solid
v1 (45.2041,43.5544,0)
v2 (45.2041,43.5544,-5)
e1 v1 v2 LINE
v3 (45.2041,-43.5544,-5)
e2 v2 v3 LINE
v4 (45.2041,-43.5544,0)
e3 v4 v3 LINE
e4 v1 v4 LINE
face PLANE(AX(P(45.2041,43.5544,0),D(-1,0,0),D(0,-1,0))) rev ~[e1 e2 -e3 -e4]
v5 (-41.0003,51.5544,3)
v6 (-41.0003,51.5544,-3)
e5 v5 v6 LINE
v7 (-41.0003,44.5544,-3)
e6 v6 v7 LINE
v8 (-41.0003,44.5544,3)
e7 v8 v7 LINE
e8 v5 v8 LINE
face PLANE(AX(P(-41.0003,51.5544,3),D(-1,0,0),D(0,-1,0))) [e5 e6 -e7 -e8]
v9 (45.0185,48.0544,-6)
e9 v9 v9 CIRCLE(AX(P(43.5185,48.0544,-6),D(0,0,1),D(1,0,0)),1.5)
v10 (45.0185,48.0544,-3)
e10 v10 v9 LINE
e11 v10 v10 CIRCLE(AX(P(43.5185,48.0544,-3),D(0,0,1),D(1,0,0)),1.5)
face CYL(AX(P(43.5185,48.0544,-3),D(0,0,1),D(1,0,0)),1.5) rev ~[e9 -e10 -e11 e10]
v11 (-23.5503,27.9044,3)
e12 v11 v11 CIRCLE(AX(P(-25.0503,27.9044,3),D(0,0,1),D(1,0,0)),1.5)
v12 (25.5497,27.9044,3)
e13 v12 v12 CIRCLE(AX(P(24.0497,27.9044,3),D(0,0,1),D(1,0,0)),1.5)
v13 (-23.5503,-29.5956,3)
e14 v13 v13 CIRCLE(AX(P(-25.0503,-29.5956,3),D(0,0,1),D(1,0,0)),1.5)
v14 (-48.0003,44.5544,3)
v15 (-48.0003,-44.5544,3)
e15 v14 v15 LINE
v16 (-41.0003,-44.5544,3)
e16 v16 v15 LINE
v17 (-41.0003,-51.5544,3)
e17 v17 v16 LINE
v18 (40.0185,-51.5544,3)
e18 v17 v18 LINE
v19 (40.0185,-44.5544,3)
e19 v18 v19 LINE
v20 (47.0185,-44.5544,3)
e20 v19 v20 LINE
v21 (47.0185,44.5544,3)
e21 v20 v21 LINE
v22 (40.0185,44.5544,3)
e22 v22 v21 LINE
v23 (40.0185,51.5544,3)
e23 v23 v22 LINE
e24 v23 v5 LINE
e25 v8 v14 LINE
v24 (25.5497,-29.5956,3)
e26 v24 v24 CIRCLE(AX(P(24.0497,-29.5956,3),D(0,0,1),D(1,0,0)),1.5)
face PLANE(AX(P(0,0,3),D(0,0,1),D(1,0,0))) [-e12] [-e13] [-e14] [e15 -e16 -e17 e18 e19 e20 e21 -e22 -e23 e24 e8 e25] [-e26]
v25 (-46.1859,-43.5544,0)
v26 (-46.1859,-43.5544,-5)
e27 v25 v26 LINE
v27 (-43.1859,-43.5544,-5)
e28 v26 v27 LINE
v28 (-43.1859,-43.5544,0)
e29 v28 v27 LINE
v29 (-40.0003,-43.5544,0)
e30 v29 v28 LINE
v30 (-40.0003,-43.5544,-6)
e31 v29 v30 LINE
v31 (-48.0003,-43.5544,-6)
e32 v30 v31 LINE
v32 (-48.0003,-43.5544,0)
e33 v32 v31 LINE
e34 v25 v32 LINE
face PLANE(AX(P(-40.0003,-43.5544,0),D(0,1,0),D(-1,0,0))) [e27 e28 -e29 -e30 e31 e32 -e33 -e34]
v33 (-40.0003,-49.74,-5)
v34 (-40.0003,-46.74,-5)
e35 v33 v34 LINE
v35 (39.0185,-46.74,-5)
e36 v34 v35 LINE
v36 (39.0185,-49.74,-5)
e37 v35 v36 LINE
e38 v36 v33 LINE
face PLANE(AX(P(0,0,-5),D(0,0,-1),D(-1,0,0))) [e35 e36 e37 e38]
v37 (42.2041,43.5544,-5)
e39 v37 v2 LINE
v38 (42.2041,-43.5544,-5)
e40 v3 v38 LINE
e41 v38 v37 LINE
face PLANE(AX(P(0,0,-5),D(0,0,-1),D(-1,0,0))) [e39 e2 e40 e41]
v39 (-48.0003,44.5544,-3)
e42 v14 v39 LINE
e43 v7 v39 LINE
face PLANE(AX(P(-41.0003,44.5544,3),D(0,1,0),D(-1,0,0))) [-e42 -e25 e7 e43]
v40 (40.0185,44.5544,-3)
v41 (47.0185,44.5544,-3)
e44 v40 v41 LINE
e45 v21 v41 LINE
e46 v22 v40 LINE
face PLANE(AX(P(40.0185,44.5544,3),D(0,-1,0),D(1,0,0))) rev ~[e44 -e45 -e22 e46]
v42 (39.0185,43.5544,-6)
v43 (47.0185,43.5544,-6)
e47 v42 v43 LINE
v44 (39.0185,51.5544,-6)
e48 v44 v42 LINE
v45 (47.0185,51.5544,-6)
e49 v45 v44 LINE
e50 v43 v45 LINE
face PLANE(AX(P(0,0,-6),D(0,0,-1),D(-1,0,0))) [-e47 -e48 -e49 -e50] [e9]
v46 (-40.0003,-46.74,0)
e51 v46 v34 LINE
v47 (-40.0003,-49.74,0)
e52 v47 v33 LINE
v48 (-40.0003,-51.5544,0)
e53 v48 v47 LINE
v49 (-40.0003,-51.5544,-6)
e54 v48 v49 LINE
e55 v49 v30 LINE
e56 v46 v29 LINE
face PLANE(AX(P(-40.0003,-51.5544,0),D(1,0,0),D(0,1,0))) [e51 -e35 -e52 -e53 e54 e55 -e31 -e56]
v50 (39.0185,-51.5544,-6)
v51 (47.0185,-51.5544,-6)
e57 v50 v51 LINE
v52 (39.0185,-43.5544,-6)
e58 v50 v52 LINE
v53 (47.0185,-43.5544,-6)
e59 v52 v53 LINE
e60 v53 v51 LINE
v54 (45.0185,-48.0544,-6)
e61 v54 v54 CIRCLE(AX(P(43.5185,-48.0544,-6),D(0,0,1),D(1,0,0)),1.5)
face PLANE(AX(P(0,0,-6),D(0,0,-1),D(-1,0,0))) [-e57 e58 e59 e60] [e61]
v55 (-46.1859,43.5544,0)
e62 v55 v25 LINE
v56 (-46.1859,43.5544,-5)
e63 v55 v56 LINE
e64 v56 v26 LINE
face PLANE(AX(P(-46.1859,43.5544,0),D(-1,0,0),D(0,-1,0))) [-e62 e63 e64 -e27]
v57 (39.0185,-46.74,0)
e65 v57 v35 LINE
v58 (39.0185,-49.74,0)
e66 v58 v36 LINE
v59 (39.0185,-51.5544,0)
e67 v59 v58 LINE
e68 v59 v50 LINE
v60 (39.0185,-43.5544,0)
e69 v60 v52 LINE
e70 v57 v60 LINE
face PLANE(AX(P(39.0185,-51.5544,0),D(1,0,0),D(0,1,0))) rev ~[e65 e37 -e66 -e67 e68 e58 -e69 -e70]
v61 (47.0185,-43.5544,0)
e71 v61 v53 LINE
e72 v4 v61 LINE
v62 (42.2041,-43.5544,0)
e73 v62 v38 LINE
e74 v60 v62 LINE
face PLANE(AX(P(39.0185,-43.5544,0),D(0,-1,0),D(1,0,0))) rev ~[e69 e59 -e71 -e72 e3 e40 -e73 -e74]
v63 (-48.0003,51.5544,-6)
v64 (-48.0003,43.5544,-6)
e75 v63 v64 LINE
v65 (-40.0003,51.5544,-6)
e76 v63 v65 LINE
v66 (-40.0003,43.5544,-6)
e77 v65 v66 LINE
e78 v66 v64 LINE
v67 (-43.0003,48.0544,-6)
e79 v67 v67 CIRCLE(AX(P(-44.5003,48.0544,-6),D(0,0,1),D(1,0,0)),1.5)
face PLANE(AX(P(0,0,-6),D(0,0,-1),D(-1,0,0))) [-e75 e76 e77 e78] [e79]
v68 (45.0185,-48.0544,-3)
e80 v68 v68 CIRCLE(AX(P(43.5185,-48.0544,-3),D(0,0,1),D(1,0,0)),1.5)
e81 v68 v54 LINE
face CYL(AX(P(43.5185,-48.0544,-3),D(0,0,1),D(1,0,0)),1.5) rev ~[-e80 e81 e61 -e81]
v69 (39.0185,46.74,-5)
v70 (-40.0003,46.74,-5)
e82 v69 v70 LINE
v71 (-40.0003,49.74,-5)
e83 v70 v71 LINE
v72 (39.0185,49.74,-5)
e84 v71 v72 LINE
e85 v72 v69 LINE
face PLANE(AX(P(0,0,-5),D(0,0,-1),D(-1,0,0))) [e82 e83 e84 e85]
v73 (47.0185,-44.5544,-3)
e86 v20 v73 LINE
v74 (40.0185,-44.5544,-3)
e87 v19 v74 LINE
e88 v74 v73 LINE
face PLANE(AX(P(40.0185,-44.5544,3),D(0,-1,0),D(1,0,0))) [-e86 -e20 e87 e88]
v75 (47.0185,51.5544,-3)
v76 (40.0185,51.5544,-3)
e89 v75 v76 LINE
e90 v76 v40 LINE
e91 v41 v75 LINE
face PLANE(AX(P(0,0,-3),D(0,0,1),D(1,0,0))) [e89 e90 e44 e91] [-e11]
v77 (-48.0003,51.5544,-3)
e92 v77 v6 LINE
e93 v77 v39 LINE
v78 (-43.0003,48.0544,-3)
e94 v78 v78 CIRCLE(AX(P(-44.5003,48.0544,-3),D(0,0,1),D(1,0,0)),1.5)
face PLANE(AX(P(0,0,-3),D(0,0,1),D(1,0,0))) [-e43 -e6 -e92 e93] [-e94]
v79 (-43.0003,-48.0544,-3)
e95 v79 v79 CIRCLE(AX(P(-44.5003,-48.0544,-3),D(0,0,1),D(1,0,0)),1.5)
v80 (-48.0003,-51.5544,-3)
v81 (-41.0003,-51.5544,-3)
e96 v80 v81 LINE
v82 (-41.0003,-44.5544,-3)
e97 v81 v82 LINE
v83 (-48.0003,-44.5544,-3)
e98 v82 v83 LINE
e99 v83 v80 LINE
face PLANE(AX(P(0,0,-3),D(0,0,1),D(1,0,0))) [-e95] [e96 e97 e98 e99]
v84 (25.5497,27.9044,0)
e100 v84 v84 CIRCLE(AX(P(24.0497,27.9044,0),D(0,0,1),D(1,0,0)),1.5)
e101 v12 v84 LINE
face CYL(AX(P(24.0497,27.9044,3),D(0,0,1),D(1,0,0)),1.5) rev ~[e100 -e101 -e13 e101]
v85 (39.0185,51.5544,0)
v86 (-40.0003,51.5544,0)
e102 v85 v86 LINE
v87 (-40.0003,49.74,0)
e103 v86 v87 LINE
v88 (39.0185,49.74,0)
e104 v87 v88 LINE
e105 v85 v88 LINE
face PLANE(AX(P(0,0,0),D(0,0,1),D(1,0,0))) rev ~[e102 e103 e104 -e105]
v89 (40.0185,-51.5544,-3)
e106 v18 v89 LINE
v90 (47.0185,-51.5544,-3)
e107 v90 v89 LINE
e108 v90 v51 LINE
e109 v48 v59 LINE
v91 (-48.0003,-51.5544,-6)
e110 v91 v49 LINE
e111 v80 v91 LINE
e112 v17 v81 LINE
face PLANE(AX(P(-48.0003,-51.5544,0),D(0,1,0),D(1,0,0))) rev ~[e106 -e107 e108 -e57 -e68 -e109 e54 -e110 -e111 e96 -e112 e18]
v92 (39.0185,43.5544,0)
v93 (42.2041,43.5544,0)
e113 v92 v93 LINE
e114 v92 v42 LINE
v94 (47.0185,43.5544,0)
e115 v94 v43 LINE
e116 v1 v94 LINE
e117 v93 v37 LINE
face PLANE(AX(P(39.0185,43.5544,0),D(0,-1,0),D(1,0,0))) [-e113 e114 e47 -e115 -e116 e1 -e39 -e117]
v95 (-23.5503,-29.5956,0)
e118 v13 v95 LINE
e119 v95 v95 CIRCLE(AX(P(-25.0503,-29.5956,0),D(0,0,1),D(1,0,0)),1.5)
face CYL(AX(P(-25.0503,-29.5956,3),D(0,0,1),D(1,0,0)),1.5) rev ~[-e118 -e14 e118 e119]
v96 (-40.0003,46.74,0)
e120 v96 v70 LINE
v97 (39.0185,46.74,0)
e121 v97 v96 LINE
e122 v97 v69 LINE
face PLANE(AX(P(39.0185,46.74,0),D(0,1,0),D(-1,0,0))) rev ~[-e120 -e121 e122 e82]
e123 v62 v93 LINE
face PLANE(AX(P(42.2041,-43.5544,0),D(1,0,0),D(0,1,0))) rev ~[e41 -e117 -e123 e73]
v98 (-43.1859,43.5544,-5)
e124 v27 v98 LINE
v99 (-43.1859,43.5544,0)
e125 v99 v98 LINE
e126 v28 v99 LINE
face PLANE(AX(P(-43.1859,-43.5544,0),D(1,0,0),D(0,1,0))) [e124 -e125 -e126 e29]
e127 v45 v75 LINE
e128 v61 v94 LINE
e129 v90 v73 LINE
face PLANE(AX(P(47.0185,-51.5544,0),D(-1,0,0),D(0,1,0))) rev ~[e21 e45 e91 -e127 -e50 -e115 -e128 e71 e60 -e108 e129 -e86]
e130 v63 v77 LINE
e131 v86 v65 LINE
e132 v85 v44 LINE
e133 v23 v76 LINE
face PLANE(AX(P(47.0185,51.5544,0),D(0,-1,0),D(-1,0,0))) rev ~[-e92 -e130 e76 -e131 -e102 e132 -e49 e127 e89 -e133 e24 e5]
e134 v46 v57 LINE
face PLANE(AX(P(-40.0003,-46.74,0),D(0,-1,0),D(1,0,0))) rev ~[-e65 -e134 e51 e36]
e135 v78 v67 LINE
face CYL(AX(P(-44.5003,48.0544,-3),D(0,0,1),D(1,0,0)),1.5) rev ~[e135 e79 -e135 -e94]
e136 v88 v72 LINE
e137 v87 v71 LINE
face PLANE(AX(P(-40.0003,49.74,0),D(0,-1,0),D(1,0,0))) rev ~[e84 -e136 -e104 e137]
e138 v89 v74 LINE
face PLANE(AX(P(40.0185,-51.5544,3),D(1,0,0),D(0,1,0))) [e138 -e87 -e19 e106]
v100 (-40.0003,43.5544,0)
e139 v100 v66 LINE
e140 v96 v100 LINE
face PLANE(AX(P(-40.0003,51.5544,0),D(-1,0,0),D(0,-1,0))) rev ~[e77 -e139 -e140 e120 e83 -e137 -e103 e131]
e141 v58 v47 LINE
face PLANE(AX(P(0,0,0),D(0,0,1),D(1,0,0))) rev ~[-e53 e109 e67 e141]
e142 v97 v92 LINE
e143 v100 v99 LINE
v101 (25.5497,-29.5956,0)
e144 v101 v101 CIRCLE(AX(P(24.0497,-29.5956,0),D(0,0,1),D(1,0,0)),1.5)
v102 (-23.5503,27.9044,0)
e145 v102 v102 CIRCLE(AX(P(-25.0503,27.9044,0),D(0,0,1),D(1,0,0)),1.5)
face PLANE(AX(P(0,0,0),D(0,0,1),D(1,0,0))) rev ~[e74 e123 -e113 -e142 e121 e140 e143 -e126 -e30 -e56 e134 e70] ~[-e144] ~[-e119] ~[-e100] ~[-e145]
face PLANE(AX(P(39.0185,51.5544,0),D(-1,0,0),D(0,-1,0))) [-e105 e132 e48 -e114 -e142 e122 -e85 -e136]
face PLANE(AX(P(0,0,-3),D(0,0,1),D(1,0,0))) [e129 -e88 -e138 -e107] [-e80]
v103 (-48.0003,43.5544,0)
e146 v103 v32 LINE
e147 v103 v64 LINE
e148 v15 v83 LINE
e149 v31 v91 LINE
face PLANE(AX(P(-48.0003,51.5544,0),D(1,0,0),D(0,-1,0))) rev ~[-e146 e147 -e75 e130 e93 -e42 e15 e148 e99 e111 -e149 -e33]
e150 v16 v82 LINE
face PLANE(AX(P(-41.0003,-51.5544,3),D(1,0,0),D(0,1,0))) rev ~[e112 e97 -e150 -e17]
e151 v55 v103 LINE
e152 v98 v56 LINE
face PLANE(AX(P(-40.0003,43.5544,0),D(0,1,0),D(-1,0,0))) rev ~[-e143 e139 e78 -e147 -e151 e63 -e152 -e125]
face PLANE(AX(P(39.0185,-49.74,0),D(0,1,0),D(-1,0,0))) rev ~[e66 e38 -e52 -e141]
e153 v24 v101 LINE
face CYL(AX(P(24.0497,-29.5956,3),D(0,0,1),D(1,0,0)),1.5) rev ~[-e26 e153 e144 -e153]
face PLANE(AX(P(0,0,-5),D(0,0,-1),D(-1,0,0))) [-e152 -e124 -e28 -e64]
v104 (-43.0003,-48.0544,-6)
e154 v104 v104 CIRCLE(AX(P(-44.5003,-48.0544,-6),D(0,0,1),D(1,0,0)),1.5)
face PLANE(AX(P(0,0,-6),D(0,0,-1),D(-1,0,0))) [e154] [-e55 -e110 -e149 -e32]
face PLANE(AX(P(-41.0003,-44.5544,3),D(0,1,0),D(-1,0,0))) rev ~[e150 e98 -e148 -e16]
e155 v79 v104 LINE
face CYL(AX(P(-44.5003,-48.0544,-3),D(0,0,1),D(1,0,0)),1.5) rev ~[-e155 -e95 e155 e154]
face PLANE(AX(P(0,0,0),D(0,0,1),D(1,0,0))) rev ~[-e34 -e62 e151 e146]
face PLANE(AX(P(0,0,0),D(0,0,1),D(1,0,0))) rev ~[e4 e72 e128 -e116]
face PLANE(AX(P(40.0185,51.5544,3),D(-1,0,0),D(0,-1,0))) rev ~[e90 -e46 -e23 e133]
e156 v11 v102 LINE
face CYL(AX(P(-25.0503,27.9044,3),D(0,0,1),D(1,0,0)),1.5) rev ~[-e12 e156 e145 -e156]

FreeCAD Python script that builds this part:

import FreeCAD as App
import Part
import Sketcher
from FreeCAD import Vector


def add_polygon(sketch, points):
    """Adds a closed chain of lines whose ends are joined by coincident constraints."""
    first, n = sketch.GeometryCount, len(points)
    for a, b in zip(points, points[1:] + points[:1]):
        sketch.addGeometry(Part.LineSegment(App.Vector(*a, 0), App.Vector(*b, 0)), False)
    for i in range(n):
        sketch.addConstraint(Sketcher.Constraint("Coincident", first + i, 2, first + (i + 1) % n, 1))

doc = App.newDocument("Part")
body = doc.addObject("PartDesign::Body", "Body")

sketch1 = body.newObject("Sketcher::SketchObject", "Sketch")
sketch1.AttachmentSupport = (doc.getObject("XY_Plane"), [""])
sketch1.MapMode = "FlatFace"
add_polygon(sketch1, [(47, -52), (47, 52), (-48, 52), (-48, -52)])
sketch1.addConstraint([
    Sketcher.Constraint("Vertical", 0),
    Sketcher.Constraint("Horizontal", 1),
    Sketcher.Constraint("Vertical", 2),
    Sketcher.Constraint("Horizontal", 3),
    Sketcher.Constraint("DistanceX", 1, 2, 1, 1, 95.0188),
    Sketcher.Constraint("DistanceY", 0, 1, 0, 2, 103.1088),
    Sketcher.Constraint("DistanceX", -1, 1, 0, 2, 47.0185),
    Sketcher.Constraint("DistanceY", -1, 1, 0, 2, 51.5544),
])
pad1 = body.newObject("PartDesign::Pad", "Pad")
pad1.Profile = sketch1
pad1.Length = 3

sketch2 = body.newObject("Sketcher::SketchObject", "Sketch001")
sketch2.AttachmentSupport = (doc.getObject("XY_Plane"), [""])
sketch2.MapMode = "FlatFace"
add_polygon(sketch2, [(-46.2, 43.6), (-43.2, 43.6), (-43.2, -43.6), (-46.2, -43.6)])
add_polygon(sketch2, [(42.2, -43.6), (42.2, 43.6), (45.2, 43.6), (45.2, -43.6)])
add_polygon(sketch2, [(-40, 46.7), (-40, 49.7), (39, 49.7), (39, 46.7)])
add_polygon(sketch2, [(-40, -49.7), (-40, -46.7), (39, -46.7), (39, -49.7)])
sketch2.addConstraint([
    Sketcher.Constraint("Horizontal", 0),
    Sketcher.Constraint("Vertical", 1),
    Sketcher.Constraint("Horizontal", 2),
    Sketcher.Constraint("Vertical", 3),
    Sketcher.Constraint("Vertical", 4),
    Sketcher.Constraint("Horizontal", 5),
    Sketcher.Constraint("Vertical", 6),
    Sketcher.Constraint("Horizontal", 7),
    Sketcher.Constraint("Vertical", 8),
    Sketcher.Constraint("Horizontal", 9),
    Sketcher.Constraint("Vertical", 10),
    Sketcher.Constraint("Horizontal", 11),
    Sketcher.Constraint("Vertical", 12),
    Sketcher.Constraint("Horizontal", 13),
    Sketcher.Constraint("Vertical", 14),
    Sketcher.Constraint("Horizontal", 15),
    Sketcher.Constraint("Symmetric", 11, 2, 12, 2, -1),
    Sketcher.Constraint("Symmetric", 9, 2, 14, 2, -1),
    Sketcher.Constraint("Horizontal", 3, 2, 4, 2),
    Sketcher.Constraint("Horizontal", 2, 2, 6, 2),
    Sketcher.Constraint("Equal", 2, 5),
    Sketcher.Constraint("Equal", 7, 8),
    Sketcher.Constraint("DistanceX", 0, 1, 0, 2, 3.0),
    Sketcher.Constraint("DistanceY", -1, 1, 8, 2, 49.74),
    Sketcher.Constraint("DistanceX", 0, 2, 4, 2, 85.39),
    Sketcher.Constraint("DistanceX", 9, 1, 9, 2, 79.0188),
    Sketcher.Constraint("DistanceY", 1, 2, 1, 1, 87.1088),
    Sketcher.Constraint("DistanceX", 0, 2, -1, 1, 43.186),
    Sketcher.Constraint("DistanceY", -1, 1, 0, 2, 43.5544),
    Sketcher.Constraint("DistanceX", 8, 2, -1, 1, 40.0003),
])
pad2 = body.newObject("PartDesign::Pad", "Pad001")
pad2.Profile = sketch2
pad2.Length = 5
pad2.Reversed = True

sketch3 = body.newObject("Sketcher::SketchObject", "Sketch002")
sketch3.AttachmentSupport = (doc.getObject("XY_Plane"), [""])
sketch3.MapMode = "FlatFace"
add_polygon(sketch3, [(47, -52), (39, -52), (39, -44), (47, -44)])
add_polygon(sketch3, [(-48, -52), (-48, -44), (-40, -44), (-40, -52)])
add_polygon(sketch3, [(39, 44), (39, 52), (47, 52), (47, 44)])
add_polygon(sketch3, [(-48, 44), (-48, 52), (-40, 52), (-40, 44)])
sketch3.addConstraint([
    Sketcher.Constraint("Horizontal", 0),
    Sketcher.Constraint("Vertical", 1),
    Sketcher.Constraint("Horizontal", 2),
    Sketcher.Constraint("Vertical", 3),
    Sketcher.Constraint("Vertical", 4),
    Sketcher.Constraint("Horizontal", 5),
    Sketcher.Constraint("Vertical", 6),
    Sketcher.Constraint("Horizontal", 7),
    Sketcher.Constraint("Vertical", 8),
    Sketcher.Constraint("Horizontal", 9),
    Sketcher.Constraint("Vertical", 10),
    Sketcher.Constraint("Horizontal", 11),
    Sketcher.Constraint("Vertical", 12),
    Sketcher.Constraint("Horizontal", 13),
    Sketcher.Constraint("Vertical", 14),
    Sketcher.Constraint("Horizontal", 15),
    Sketcher.Constraint("Symmetric", 0, 2, 8, 2, -1),
    Sketcher.Constraint("Symmetric", 2, 2, 10, 2, -1),
    Sketcher.Constraint("Symmetric", 7, 2, 12, 2, -1),
    Sketcher.Constraint("Symmetric", 5, 2, 14, 2, -1),
    Sketcher.Constraint("Horizontal", 2, 2, 4, 2),
    Sketcher.Constraint("Horizontal", 3, 2, 6, 2),
    Sketcher.Constraint("Equal", 2, 5),
    Sketcher.Constraint("Equal", 15, 1),
    Sketcher.Constraint("DistanceX", 0, 2, 0, 1, 8.0),
    Sketcher.Constraint("DistanceX", -1, 1, 0, 2, 39.0185),
    Sketcher.Constraint("DistanceY", 0, 2, -1, 1, 51.5544),
    Sketcher.Constraint("DistanceX", 4, 2, -1, 1, 48.0003),
])
pad3 = body.newObject("PartDesign::Pad", "Pad002")
pad3.Profile = sketch3
pad3.Length = 6
pad3.Reversed = True

sketch4 = body.newObject("Sketcher::SketchObject", "Sketch003")
sketch4.AttachmentSupport = (doc.getObject("XY_Plane"), [""])
sketch4.MapMode = "FlatFace"
sketch4.AttachmentOffset = App.Placement(Vector(0, 0, 3), App.Rotation())
add_polygon(sketch4, [(40, -52), (47, -52), (47, -45), (40, -45)])
add_polygon(sketch4, [(40, 45), (47, 45), (47, 52), (40, 52)])
add_polygon(sketch4, [(-41, 52), (-48, 52), (-48, 45), (-41, 45)])
add_polygon(sketch4, [(-41, -45), (-48, -45), (-48, -52), (-41, -52)])
sketch4.addConstraint([
    Sketcher.Constraint("Horizontal", 0),
    Sketcher.Constraint("Vertical", 1),
    Sketcher.Constraint("Horizontal", 2),
    Sketcher.Constraint("Vertical", 3),
    Sketcher.Constraint("Horizontal", 4),
    Sketcher.Constraint("Vertical", 5),
    Sketcher.Constraint("Horizontal", 6),
    Sketcher.Constraint("Vertical", 7),
    Sketcher.Constraint("Horizontal", 8),
    Sketcher.Constraint("Vertical", 9),
    Sketcher.Constraint("Horizontal", 10),
    Sketcher.Constraint("Vertical", 11),
    Sketcher.Constraint("Horizontal", 12),
    Sketcher.Constraint("Vertical", 13),
    Sketcher.Constraint("Horizontal", 14),
    Sketcher.Constraint("Vertical", 15),
    Sketcher.Constraint("Symmetric", 1, 2, 4, 2, -1),
    Sketcher.Constraint("Symmetric", 3, 2, 6, 2, -1),
    Sketcher.Constraint("Symmetric", 9, 2, 12, 2, -1),
    Sketcher.Constraint("Symmetric", 11, 2, 14, 2, -1),
    Sketcher.Constraint("Horizontal", 6, 2, 8, 2),
    Sketcher.Constraint("Horizontal", 7, 2, 9, 2),
    Sketcher.Constraint("Equal", 6, 8),
    Sketcher.Constraint("Equal", 14, 1),
    Sketcher.Constraint("DistanceX", 0, 1, 0, 2, 7.0),
    Sketcher.Constraint("DistanceX", -1, 1, 0, 2, 47.0185),
    Sketcher.Constraint("DistanceY", 0, 2, -1, 1, 51.5544),
    Sketcher.Constraint("DistanceX", 8, 2, -1, 1, 48.0003),
])
pocket1 = body.newObject("PartDesign::Pocket", "Pocket")
pocket1.Profile = sketch4
pocket1.Length = 6

sketch5 = body.newObject("Sketcher::SketchObject", "Sketch004")
sketch5.AttachmentSupport = (doc.getObject("XY_Plane"), [""])
sketch5.MapMode = "FlatFace"
sketch5.AttachmentOffset = App.Placement(Vector(0, 0, -3), App.Rotation())
sketch5.addGeometry([
    Part.Circle(Vector(43.5, 48.1, 0), Vector(0, 0, 1), 1.5),
    Part.Circle(Vector(43.5, -48.1, 0), Vector(0, 0, 1), 1.5),
    Part.Circle(Vector(-44.5, -48.1, 0), Vector(0, 0, 1), 1.5),
    Part.Circle(Vector(-44.5, 48.1, 0), Vector(0, 0, 1), 1.5),
], False)
sketch5.addConstraint([
    Sketcher.Constraint("Equal", 0, 1),
    Sketcher.Constraint("Equal", 1, 2),
    Sketcher.Constraint("Equal", 2, 3),
    Sketcher.Constraint("Symmetric", 0, 3, 1, 3, -1),
    Sketcher.Constraint("Symmetric", 2, 3, 3, 3, -1),
    Sketcher.Constraint("Horizontal", 1, 3, 2, 3),
    Sketcher.Constraint("Diameter", 0, 3.0),
    Sketcher.Constraint("DistanceX", -1, 1, 0, 3, 43.5185),
    Sketcher.Constraint("DistanceY", -1, 1, 0, 3, 48.0544),
    Sketcher.Constraint("DistanceX", 2, 3, -1, 1, 44.5003),
])
pocket2 = body.newObject("PartDesign::Pocket", "Pocket001")
pocket2.Profile = sketch5
pocket2.Length = 3

sketch6 = body.newObject("Sketcher::SketchObject", "Sketch005")
sketch6.AttachmentSupport = (doc.getObject("XY_Plane"), [""])
sketch6.MapMode = "FlatFace"
sketch6.AttachmentOffset = App.Placement(Vector(0, 0, 3), App.Rotation())
sketch6.addGeometry([
    Part.Circle(Vector(24, -29.6, 0), Vector(0, 0, 1), 1.5),
    Part.Circle(Vector(-25.1, -29.6, 0), Vector(0, 0, 1), 1.5),
    Part.Circle(Vector(24, 27.9, 0), Vector(0, 0, 1), 1.5),
    Part.Circle(Vector(-25.1, 27.9, 0), Vector(0, 0, 1), 1.5),
], False)
sketch6.addConstraint([
    Sketcher.Constraint("Equal", 0, 1),
    Sketcher.Constraint("Equal", 1, 2),
    Sketcher.Constraint("Equal", 2, 3),
    Sketcher.Constraint("Horizontal", 0, 3, 1, 3),
    Sketcher.Constraint("Horizontal", 2, 3, 3, 3),
    Sketcher.Constraint("Vertical", 0, 3, 2, 3),
    Sketcher.Constraint("Vertical", 1, 3, 3, 3),
    Sketcher.Constraint("Diameter", 0, 3.0),
    Sketcher.Constraint("DistanceX", 1, 3, 0, 3, 49.1),
    Sketcher.Constraint("DistanceY", 0, 3, 2, 3, 57.5),
    Sketcher.Constraint("DistanceX", -1, 1, 0, 3, 24.0497),
    Sketcher.Constraint("DistanceY", 0, 3, -1, 1, 29.5956),
])
pocket3 = body.newObject("PartDesign::Pocket", "Pocket002")
pocket3.Profile = sketch6
pocket3.Type = "UpToFirst"

doc.recompute()
